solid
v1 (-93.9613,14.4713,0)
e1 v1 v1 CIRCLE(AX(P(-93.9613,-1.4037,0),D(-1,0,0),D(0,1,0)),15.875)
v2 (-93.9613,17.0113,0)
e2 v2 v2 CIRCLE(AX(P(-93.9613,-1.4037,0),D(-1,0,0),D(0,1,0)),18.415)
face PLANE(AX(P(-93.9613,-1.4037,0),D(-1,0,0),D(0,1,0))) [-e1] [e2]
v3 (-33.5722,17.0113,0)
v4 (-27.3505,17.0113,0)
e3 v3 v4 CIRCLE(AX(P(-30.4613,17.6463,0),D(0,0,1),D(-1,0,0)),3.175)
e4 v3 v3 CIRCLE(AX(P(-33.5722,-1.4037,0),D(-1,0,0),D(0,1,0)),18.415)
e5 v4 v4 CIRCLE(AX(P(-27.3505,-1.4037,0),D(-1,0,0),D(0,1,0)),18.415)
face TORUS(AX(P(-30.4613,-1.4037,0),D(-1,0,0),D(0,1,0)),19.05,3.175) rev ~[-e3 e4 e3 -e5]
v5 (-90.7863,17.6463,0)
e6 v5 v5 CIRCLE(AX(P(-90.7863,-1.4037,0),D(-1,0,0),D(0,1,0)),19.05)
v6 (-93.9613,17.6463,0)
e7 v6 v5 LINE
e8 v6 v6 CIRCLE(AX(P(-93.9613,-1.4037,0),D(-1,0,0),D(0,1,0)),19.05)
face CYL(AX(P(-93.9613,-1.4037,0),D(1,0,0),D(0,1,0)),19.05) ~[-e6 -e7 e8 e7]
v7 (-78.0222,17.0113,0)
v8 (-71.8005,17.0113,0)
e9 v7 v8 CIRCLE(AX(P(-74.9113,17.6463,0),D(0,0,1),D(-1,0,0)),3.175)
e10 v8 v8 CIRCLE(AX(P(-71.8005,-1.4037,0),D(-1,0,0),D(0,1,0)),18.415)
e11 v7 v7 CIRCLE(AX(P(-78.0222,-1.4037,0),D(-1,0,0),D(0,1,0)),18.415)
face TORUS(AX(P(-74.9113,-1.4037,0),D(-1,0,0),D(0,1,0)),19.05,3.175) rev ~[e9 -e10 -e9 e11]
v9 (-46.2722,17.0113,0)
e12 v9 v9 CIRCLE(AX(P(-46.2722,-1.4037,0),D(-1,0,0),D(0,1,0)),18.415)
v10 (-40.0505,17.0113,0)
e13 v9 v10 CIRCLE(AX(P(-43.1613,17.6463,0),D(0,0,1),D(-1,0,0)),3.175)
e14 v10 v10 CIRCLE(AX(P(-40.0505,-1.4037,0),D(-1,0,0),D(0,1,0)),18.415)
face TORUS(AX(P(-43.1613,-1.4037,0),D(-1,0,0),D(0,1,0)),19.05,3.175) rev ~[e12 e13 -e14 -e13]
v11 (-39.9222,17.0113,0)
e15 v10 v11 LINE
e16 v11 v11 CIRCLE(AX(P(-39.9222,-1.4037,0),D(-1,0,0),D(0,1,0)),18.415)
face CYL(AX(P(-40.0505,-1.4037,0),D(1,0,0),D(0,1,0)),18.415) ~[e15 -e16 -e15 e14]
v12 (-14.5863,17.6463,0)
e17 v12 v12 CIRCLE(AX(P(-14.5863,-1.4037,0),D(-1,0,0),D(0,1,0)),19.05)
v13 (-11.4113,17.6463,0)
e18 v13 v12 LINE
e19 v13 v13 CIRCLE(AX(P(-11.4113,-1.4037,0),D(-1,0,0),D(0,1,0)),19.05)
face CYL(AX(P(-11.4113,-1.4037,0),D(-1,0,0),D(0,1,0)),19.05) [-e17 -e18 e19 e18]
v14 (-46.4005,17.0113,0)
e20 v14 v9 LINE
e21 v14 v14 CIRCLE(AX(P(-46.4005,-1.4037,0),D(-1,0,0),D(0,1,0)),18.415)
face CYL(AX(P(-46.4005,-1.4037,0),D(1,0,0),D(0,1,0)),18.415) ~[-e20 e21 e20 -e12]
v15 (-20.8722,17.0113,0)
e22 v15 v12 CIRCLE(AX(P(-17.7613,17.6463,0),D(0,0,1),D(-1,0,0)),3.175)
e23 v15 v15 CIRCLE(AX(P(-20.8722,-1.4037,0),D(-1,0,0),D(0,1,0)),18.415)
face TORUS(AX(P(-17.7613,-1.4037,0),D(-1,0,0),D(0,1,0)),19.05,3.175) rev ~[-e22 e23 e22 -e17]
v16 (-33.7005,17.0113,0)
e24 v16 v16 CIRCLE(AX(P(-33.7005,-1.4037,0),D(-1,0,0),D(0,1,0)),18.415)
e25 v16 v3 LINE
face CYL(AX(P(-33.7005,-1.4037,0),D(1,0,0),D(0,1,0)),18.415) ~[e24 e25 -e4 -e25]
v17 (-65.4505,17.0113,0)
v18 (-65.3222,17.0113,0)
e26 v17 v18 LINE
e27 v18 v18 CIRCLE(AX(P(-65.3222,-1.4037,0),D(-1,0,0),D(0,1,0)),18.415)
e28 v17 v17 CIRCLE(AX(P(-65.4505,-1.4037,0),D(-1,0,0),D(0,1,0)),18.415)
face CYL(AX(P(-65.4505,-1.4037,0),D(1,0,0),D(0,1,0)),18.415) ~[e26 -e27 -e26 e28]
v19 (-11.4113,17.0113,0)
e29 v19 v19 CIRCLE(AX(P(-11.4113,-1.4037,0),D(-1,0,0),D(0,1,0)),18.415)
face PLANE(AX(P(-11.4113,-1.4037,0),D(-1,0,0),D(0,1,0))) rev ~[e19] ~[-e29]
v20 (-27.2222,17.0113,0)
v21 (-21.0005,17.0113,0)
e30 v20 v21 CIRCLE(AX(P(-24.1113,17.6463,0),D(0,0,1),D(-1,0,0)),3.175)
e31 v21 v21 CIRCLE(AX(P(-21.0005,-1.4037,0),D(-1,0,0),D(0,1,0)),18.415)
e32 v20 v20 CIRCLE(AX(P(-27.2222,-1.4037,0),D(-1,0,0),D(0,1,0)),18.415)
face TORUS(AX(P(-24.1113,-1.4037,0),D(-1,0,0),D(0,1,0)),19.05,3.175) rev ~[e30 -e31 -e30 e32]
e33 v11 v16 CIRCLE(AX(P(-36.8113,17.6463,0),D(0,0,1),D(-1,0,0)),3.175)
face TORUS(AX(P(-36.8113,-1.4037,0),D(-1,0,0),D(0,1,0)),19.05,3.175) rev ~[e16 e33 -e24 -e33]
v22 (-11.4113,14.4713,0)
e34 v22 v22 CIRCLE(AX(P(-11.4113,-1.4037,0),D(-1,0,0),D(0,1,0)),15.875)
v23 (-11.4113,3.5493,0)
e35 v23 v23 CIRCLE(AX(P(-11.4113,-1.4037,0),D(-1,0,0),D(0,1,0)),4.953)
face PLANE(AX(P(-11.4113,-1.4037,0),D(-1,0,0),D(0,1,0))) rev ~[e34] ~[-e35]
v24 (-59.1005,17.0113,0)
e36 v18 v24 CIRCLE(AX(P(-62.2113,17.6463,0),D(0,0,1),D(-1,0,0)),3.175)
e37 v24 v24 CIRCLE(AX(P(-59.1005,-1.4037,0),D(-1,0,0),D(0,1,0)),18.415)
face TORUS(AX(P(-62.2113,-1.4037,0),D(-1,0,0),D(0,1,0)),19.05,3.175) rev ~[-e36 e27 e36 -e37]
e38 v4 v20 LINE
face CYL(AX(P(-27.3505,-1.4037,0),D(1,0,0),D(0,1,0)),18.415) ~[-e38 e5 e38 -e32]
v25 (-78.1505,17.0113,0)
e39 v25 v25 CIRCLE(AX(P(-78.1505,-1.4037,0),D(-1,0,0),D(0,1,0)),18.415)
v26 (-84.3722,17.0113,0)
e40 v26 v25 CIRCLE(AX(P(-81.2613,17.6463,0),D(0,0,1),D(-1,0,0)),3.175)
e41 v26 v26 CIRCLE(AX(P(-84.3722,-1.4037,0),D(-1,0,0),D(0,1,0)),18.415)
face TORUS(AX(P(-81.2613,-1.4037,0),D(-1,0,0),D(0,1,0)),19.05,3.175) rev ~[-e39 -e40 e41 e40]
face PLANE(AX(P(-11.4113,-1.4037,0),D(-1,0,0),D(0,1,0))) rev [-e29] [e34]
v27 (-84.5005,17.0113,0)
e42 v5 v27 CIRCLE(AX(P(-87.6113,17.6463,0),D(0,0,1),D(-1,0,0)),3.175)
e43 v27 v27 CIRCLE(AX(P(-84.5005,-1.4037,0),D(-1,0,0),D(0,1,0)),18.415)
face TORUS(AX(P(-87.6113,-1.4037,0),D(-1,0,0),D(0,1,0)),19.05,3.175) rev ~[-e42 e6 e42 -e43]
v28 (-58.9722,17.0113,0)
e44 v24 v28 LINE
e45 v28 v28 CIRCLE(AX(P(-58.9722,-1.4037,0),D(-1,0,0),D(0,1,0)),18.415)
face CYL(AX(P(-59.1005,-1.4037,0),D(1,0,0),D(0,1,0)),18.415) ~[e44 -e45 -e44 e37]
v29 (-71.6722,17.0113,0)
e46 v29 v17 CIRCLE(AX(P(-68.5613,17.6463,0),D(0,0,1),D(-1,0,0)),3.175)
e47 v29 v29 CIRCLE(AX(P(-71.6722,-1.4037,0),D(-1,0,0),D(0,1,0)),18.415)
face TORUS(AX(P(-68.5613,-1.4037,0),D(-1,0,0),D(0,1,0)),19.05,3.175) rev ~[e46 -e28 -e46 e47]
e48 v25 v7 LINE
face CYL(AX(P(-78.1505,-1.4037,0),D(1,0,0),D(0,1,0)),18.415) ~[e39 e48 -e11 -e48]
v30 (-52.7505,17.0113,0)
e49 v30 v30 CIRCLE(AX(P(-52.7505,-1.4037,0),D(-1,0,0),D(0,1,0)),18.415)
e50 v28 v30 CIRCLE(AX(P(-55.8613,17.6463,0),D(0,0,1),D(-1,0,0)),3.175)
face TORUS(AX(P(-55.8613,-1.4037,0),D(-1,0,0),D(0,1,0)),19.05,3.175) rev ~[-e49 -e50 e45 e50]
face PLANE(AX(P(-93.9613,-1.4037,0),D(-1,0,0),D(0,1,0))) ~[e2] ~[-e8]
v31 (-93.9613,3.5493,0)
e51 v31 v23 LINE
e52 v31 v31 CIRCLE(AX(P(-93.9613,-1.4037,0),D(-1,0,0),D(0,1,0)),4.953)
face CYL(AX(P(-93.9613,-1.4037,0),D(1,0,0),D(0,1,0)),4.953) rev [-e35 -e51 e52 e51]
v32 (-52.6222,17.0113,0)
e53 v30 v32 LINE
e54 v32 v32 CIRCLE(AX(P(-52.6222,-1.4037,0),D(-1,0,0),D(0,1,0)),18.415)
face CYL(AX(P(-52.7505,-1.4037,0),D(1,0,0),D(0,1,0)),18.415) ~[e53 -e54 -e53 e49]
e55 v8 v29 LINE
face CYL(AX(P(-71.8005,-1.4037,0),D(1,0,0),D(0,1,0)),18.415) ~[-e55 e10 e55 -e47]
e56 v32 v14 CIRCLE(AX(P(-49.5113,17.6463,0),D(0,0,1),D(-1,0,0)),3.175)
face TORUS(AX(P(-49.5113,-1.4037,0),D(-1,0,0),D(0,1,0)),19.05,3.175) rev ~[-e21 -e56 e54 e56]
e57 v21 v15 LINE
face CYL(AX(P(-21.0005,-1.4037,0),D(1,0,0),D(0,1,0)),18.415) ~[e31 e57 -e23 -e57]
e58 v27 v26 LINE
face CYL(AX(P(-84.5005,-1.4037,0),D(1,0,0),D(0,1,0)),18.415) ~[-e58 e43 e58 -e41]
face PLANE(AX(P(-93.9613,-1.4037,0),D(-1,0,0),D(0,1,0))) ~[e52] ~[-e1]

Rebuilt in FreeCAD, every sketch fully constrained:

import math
import FreeCAD as App
import Part
import Sketcher
from FreeCAD import Vector
Q = App.Units.Quantity

doc = App.newDocument("Part")
body = doc.addObject("PartDesign::Body", "Body")

# Sketch on XY plane
sketch1 = doc.addObject("Sketcher::SketchObject", "Sketch")
body.addObject(sketch1)
sketch1.AttachmentSupport = (doc.XY_Plane, [""])
sketch1.MapMode = "FlatFace"
sketch1.addGeometry([
    Part.LineSegment(Vector(-93.96, 3.55, 0), Vector(-11.41, 3.55, 0)),  # 0
    Part.LineSegment(Vector(-11.41, 3.55, 0), Vector(-11.41, 17.65, 0)),  # 1
    Part.LineSegment(Vector(-11.41, 17.65, 0), Vector(-14.59, 17.65, 0)),  # 2
    Part.ArcOfCircle(Part.Circle(Vector(-17.76, 17.65, 0), Vector(0, 0, 1), 3.18), math.radians(-168), math.radians(0)),  # 3
    Part.LineSegment(Vector(-20.87, 17.01, 0), Vector(-21, 17.01, 0)),  # 4
    Part.ArcOfCircle(Part.Circle(Vector(-24.11, 17.65, 0), Vector(0, 0, 1), 3.18), math.radians(-168), math.radians(-12)),  # 5
    Part.LineSegment(Vector(-27.22, 17.01, 0), Vector(-27.35, 17.01, 0)),  # 6
    Part.ArcOfCircle(Part.Circle(Vector(-30.46, 17.65, 0), Vector(0, 0, 1), 3.17), math.radians(-168), math.radians(-12)),  # 7
    Part.LineSegment(Vector(-33.57, 17.01, 0), Vector(-33.7, 17.01, 0)),  # 8
    Part.ArcOfCircle(Part.Circle(Vector(-36.81, 17.65, 0), Vector(0, 0, 1), 3.17), math.radians(-168), math.radians(-12)),  # 9
    Part.LineSegment(Vector(-39.92, 17.01, 0), Vector(-40.05, 17.01, 0)),  # 10
    Part.ArcOfCircle(Part.Circle(Vector(-43.16, 17.65, 0), Vector(0, 0, 1), 3.18), math.radians(-168), math.radians(-12)),  # 11
    Part.LineSegment(Vector(-46.27, 17.01, 0), Vector(-46.4, 17.01, 0)),  # 12
    Part.ArcOfCircle(Part.Circle(Vector(-49.51, 17.65, 0), Vector(0, 0, 1), 3.18), math.radians(-168), math.radians(-12)),  # 13
    Part.LineSegment(Vector(-52.62, 17.01, 0), Vector(-52.75, 17.01, 0)),  # 14
    Part.ArcOfCircle(Part.Circle(Vector(-55.86, 17.65, 0), Vector(0, 0, 1), 3.17), math.radians(-168), math.radians(-12)),  # 15
    Part.LineSegment(Vector(-58.97, 17.01, 0), Vector(-59.1, 17.01, 0)),  # 16
    Part.ArcOfCircle(Part.Circle(Vector(-62.21, 17.65, 0), Vector(0, 0, 1), 3.18), math.radians(-168), math.radians(-12)),  # 17
    Part.LineSegment(Vector(-65.32, 17.01, 0), Vector(-65.45, 17.01, 0)),  # 18
    Part.ArcOfCircle(Part.Circle(Vector(-68.56, 17.65, 0), Vector(0, 0, 1), 3.17), math.radians(-168), math.radians(-12)),  # 19
    Part.LineSegment(Vector(-71.67, 17.01, 0), Vector(-71.8, 17.01, 0)),  # 20
    Part.ArcOfCircle(Part.Circle(Vector(-74.91, 17.65, 0), Vector(0, 0, 1), 3.17), math.radians(-168), math.radians(-12)),  # 21
    Part.LineSegment(Vector(-78.02, 17.01, 0), Vector(-78.15, 17.01, 0)),  # 22
    Part.ArcOfCircle(Part.Circle(Vector(-81.26, 17.65, 0), Vector(0, 0, 1), 3.17), math.radians(-168), math.radians(-12)),  # 23
    Part.LineSegment(Vector(-84.37, 17.01, 0), Vector(-84.5, 17.01, 0)),  # 24
    Part.ArcOfCircle(Part.Circle(Vector(-87.61, 17.65, 0), Vector(0, 0, 1), 3.17), math.radians(180), math.radians(348)),  # 25
    Part.LineSegment(Vector(-90.79, 17.65, 0), Vector(-93.96, 17.65, 0)),  # 26
    Part.LineSegment(Vector(-93.96, 17.65, 0), Vector(-93.96, 3.55, 0)),  # 27
], False)
sketch1.addGeometry(Part.LineSegment(Vector(-11.41, -1.4, 0), Vector(-93.96, -1.4, 0)), True)  # axis
sketch1.addConstraint([
    Sketcher.Constraint("Coincident", 0, 2, 1, 1),
    Sketcher.Constraint("Coincident", 1, 2, 2, 1),
    Sketcher.Constraint("Coincident", 2, 2, 3, 2),
    Sketcher.Constraint("Coincident", 3, 1, 4, 1),
    Sketcher.Constraint("Coincident", 4, 2, 5, 2),
    Sketcher.Constraint("Coincident", 5, 1, 6, 1),
    Sketcher.Constraint("Coincident", 6, 2, 7, 2),
    Sketcher.Constraint("Coincident", 7, 1, 8, 1),
    Sketcher.Constraint("Coincident", 8, 2, 9, 2),
    Sketcher.Constraint("Coincident", 9, 1, 10, 1),
    Sketcher.Constraint("Coincident", 10, 2, 11, 2),
    Sketcher.Constraint("Coincident", 11, 1, 12, 1),
    Sketcher.Constraint("Coincident", 12, 2, 13, 2),
    Sketcher.Constraint("Coincident", 13, 1, 14, 1),
    Sketcher.Constraint("Coincident", 14, 2, 15, 2),
    Sketcher.Constraint("Coincident", 15, 1, 16, 1),
    Sketcher.Constraint("Coincident", 16, 2, 17, 2),
    Sketcher.Constraint("Coincident", 17, 1, 18, 1),
    Sketcher.Constraint("Coincident", 18, 2, 19, 2),
    Sketcher.Constraint("Coincident", 19, 1, 20, 1),
    Sketcher.Constraint("Coincident", 20, 2, 21, 2),
    Sketcher.Constraint("Coincident", 21, 1, 22, 1),
    Sketcher.Constraint("Coincident", 22, 2, 23, 2),
    Sketcher.Constraint("Coincident", 23, 1, 24, 1),
    Sketcher.Constraint("Coincident", 24, 2, 25, 2),
    Sketcher.Constraint("Coincident", 25, 1, 26, 1),
    Sketcher.Constraint("Coincident", 26, 2, 27, 1),
    Sketcher.Constraint("Coincident", 27, 2, 0, 1),
    Sketcher.Constraint("Horizontal", 0),
    Sketcher.Constraint("Vertical", 1),
    Sketcher.Constraint("Horizontal", 2),
    Sketcher.Constraint("Horizontal", 4),
    Sketcher.Constraint("Horizontal", 6),
    Sketcher.Constraint("Horizontal", 8),
    Sketcher.Constraint("Horizontal", 10),
    Sketcher.Constraint("Horizontal", 12),
    Sketcher.Constraint("Horizontal", 14),
    Sketcher.Constraint("Horizontal", 16),
    Sketcher.Constraint("Horizontal", 18),
    Sketcher.Constraint("Horizontal", 20),
    Sketcher.Constraint("Horizontal", 22),
    Sketcher.Constraint("Horizontal", 24),
    Sketcher.Constraint("Horizontal", 26),
    Sketcher.Constraint("Vertical", 27),
    Sketcher.Constraint("Horizontal", 28),
    Sketcher.Constraint("Equal", 3, 5),
    Sketcher.Constraint("Equal", 5, 7),
    Sketcher.Constraint("Equal", 7, 9),
    Sketcher.Constraint("Equal", 9, 11),
    Sketcher.Constraint("Equal", 11, 13),
    Sketcher.Constraint("Equal", 13, 15),
    Sketcher.Constraint("Equal", 15, 17),
    Sketcher.Constraint("Equal", 17, 19),
    Sketcher.Constraint("Equal", 19, 21),
    Sketcher.Constraint("Equal", 21, 23),
    Sketcher.Constraint("Equal", 23, 25),
    Sketcher.Constraint("Horizontal", 3, 3, 5, 3),
    Sketcher.Constraint("Horizontal", 5, 3, 7, 3),
    Sketcher.Constraint("Horizontal", 7, 3, 9, 3),
    Sketcher.Constraint("Horizontal", 9, 3, 11, 3),
    Sketcher.Constraint("Horizontal", 11, 3, 13, 3),
    Sketcher.Constraint("Horizontal", 13, 3, 15, 3),
    Sketcher.Constraint("Horizontal", 15, 3, 17, 3),
    Sketcher.Constraint("Horizontal", 17, 3, 19, 3),
    Sketcher.Constraint("Horizontal", 19, 3, 21, 3),
    Sketcher.Constraint("Horizontal", 21, 3, 23, 3),
    Sketcher.Constraint("Horizontal", 23, 3, 25, 3),
    Sketcher.Constraint("Horizontal", 25, 3, 1, 2),
    Sketcher.Constraint("Horizontal", 4, 2, 5, 1),
    Sketcher.Constraint("Horizontal", 6, 2, 7, 1),
    Sketcher.Constraint("Horizontal", 8, 2, 9, 1),
    Sketcher.Constraint("Horizontal", 10, 2, 11, 1),
    Sketcher.Constraint("Horizontal", 12, 2, 13, 1),
    Sketcher.Constraint("Horizontal", 14, 2, 15, 1),
    Sketcher.Constraint("Horizontal", 16, 2, 17, 1),
    Sketcher.Constraint("Horizontal", 18, 2, 19, 1),
    Sketcher.Constraint("Horizontal", 20, 2, 21, 1),
    Sketcher.Constraint("Horizontal", 22, 2, 23, 1),
    Sketcher.Constraint("Horizontal", 2, 2, 25, 1),
    Sketcher.Constraint("Vertical", 1, 2, 28, 1),
    Sketcher.Constraint("Vertical", 27, 2, 28, 2),
    Sketcher.Constraint("Equal", 4, 6),
    Sketcher.Constraint("Equal", 6, 8),
    Sketcher.Constraint("Equal", 8, 10),
    Sketcher.Constraint("Equal", 10, 12),
    Sketcher.Constraint("Equal", 12, 14),
    Sketcher.Constraint("Equal", 14, 16),
    Sketcher.Constraint("Equal", 16, 18),
    Sketcher.Constraint("Equal", 18, 20),
    Sketcher.Constraint("Equal", 20, 22),
    Sketcher.Constraint("Equal", 22, 24),
    Sketcher.Constraint("Equal", 2, 26),
    Sketcher.Constraint("Radius", 3, Q("0.125 in")),
    Sketcher.Constraint("DistanceX", 0, 1, 0, 2, Q("3.25 in")),
    Sketcher.Constraint("DistanceX", 2, 2, 2, 1, Q("0.125 in")),
    Sketcher.Constraint("DistanceY", 28, 1, 1, 2, Q("0.75 in")),
    Sketcher.Constraint("DistanceY", 3, 1, 3, 3, Q("0.025 in")),
    Sketcher.Constraint("DistanceY", 28, 1, 0, 2, Q("0.195 in")),
    Sketcher.Constraint("DistanceX", 4, 2, -1, 1, Q("0.8268 in")),
    Sketcher.Constraint("DistanceY", -1, 1, 3, 3, 17.6463),
])
revolution = doc.addObject("PartDesign::Revolution", "Revolution")
body.addObject(revolution)
revolution.Profile = sketch1
revolution.ReferenceAxis = (sketch1, ["Axis0"])
revolution.Angle = 360

doc.recompute()
